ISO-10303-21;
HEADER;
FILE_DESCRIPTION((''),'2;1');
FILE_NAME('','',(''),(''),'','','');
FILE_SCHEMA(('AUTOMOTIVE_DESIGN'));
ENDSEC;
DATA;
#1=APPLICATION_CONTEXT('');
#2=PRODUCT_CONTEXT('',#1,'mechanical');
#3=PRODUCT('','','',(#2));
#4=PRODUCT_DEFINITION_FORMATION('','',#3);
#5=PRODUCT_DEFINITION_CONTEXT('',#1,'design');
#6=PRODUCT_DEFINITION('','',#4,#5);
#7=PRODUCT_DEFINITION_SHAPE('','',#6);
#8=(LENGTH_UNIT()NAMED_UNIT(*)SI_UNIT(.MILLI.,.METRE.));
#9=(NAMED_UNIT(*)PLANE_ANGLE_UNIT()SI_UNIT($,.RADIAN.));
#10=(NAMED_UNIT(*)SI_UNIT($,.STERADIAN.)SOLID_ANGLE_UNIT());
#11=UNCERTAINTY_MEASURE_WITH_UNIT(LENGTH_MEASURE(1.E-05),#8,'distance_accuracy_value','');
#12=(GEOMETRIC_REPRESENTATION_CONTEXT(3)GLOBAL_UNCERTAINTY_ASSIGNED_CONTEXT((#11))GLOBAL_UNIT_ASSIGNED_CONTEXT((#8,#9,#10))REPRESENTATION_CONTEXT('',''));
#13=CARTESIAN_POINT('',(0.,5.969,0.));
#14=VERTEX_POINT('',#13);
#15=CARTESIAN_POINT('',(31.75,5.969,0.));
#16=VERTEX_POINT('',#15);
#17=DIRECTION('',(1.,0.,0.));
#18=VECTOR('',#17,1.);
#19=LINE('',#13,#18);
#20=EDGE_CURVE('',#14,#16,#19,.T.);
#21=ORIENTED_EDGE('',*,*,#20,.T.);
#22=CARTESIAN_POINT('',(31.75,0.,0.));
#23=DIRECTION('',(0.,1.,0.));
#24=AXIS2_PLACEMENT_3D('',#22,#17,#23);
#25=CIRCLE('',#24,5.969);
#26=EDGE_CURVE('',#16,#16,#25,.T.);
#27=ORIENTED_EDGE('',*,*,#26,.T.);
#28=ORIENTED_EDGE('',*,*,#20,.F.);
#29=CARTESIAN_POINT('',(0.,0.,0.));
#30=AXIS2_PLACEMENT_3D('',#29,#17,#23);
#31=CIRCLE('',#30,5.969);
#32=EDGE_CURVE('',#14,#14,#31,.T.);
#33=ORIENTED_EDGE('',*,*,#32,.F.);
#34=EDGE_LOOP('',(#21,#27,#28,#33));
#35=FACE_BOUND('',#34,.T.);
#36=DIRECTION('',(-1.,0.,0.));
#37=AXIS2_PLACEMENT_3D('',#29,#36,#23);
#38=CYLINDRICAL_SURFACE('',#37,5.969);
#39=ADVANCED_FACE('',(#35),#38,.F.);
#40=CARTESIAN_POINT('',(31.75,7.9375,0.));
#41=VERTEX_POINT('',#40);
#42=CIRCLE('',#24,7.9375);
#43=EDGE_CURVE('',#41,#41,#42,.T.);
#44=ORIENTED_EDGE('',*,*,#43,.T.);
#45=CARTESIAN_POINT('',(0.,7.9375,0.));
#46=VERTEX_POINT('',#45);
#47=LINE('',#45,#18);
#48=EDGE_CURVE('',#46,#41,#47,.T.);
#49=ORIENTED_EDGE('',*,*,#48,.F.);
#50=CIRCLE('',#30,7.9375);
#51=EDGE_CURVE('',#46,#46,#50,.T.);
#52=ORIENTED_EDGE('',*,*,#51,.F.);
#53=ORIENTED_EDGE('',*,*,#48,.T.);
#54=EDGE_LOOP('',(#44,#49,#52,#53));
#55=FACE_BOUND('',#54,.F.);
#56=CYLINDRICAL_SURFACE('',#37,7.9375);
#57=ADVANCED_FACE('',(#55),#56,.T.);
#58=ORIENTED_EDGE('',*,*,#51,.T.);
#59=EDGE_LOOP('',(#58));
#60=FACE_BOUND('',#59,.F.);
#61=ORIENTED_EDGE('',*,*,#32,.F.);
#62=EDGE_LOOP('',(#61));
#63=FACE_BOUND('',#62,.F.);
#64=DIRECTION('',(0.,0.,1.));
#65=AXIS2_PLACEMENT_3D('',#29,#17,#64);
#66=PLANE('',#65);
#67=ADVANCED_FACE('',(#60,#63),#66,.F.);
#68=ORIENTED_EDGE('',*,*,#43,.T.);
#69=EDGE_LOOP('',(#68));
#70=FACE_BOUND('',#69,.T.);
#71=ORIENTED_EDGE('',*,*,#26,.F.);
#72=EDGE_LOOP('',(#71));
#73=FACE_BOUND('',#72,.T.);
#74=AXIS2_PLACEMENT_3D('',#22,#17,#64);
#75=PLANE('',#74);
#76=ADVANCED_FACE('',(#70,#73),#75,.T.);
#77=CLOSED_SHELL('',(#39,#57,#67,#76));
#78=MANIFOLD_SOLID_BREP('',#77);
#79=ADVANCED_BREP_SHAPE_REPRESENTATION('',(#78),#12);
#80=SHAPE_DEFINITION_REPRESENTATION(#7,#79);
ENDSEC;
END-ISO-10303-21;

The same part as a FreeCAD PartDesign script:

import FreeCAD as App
import Part
import Sketcher

V = App.Vector
Q = App.Units.Quantity

doc = App.newDocument("Part")
body = doc.addObject("PartDesign::Body", "Body")

# Sketch on YZ plane
sketch1 = doc.addObject("Sketcher::SketchObject", "Sketch")
body.addObject(sketch1)
sketch1.AttachmentSupport = (doc.YZ_Plane, [""])
sketch1.MapMode = "FlatFace"
sketch1.addGeometry([
    Part.Circle(V(0, 0, 0), V(0, 0, 1), 8),
    Part.Circle(V(0, 0, 0), V(0, 0, 1), 6),
], False)
sketch1.addConstraint([
    Sketcher.Constraint("Coincident", 0, 3, -1, 1),
    Sketcher.Constraint("Coincident", 1, 3, -1, 1),
    Sketcher.Constraint("Diameter", 1, Q("0.47 in")),
    Sketcher.Constraint("Diameter", 0, Q("0.625 in")),
])
pad1 = doc.addObject("PartDesign::Pad", "Pad")
body.addObject(pad1)
pad1.Profile = sketch1
pad1.Length = Q("1.25 in")

doc.recompute()
